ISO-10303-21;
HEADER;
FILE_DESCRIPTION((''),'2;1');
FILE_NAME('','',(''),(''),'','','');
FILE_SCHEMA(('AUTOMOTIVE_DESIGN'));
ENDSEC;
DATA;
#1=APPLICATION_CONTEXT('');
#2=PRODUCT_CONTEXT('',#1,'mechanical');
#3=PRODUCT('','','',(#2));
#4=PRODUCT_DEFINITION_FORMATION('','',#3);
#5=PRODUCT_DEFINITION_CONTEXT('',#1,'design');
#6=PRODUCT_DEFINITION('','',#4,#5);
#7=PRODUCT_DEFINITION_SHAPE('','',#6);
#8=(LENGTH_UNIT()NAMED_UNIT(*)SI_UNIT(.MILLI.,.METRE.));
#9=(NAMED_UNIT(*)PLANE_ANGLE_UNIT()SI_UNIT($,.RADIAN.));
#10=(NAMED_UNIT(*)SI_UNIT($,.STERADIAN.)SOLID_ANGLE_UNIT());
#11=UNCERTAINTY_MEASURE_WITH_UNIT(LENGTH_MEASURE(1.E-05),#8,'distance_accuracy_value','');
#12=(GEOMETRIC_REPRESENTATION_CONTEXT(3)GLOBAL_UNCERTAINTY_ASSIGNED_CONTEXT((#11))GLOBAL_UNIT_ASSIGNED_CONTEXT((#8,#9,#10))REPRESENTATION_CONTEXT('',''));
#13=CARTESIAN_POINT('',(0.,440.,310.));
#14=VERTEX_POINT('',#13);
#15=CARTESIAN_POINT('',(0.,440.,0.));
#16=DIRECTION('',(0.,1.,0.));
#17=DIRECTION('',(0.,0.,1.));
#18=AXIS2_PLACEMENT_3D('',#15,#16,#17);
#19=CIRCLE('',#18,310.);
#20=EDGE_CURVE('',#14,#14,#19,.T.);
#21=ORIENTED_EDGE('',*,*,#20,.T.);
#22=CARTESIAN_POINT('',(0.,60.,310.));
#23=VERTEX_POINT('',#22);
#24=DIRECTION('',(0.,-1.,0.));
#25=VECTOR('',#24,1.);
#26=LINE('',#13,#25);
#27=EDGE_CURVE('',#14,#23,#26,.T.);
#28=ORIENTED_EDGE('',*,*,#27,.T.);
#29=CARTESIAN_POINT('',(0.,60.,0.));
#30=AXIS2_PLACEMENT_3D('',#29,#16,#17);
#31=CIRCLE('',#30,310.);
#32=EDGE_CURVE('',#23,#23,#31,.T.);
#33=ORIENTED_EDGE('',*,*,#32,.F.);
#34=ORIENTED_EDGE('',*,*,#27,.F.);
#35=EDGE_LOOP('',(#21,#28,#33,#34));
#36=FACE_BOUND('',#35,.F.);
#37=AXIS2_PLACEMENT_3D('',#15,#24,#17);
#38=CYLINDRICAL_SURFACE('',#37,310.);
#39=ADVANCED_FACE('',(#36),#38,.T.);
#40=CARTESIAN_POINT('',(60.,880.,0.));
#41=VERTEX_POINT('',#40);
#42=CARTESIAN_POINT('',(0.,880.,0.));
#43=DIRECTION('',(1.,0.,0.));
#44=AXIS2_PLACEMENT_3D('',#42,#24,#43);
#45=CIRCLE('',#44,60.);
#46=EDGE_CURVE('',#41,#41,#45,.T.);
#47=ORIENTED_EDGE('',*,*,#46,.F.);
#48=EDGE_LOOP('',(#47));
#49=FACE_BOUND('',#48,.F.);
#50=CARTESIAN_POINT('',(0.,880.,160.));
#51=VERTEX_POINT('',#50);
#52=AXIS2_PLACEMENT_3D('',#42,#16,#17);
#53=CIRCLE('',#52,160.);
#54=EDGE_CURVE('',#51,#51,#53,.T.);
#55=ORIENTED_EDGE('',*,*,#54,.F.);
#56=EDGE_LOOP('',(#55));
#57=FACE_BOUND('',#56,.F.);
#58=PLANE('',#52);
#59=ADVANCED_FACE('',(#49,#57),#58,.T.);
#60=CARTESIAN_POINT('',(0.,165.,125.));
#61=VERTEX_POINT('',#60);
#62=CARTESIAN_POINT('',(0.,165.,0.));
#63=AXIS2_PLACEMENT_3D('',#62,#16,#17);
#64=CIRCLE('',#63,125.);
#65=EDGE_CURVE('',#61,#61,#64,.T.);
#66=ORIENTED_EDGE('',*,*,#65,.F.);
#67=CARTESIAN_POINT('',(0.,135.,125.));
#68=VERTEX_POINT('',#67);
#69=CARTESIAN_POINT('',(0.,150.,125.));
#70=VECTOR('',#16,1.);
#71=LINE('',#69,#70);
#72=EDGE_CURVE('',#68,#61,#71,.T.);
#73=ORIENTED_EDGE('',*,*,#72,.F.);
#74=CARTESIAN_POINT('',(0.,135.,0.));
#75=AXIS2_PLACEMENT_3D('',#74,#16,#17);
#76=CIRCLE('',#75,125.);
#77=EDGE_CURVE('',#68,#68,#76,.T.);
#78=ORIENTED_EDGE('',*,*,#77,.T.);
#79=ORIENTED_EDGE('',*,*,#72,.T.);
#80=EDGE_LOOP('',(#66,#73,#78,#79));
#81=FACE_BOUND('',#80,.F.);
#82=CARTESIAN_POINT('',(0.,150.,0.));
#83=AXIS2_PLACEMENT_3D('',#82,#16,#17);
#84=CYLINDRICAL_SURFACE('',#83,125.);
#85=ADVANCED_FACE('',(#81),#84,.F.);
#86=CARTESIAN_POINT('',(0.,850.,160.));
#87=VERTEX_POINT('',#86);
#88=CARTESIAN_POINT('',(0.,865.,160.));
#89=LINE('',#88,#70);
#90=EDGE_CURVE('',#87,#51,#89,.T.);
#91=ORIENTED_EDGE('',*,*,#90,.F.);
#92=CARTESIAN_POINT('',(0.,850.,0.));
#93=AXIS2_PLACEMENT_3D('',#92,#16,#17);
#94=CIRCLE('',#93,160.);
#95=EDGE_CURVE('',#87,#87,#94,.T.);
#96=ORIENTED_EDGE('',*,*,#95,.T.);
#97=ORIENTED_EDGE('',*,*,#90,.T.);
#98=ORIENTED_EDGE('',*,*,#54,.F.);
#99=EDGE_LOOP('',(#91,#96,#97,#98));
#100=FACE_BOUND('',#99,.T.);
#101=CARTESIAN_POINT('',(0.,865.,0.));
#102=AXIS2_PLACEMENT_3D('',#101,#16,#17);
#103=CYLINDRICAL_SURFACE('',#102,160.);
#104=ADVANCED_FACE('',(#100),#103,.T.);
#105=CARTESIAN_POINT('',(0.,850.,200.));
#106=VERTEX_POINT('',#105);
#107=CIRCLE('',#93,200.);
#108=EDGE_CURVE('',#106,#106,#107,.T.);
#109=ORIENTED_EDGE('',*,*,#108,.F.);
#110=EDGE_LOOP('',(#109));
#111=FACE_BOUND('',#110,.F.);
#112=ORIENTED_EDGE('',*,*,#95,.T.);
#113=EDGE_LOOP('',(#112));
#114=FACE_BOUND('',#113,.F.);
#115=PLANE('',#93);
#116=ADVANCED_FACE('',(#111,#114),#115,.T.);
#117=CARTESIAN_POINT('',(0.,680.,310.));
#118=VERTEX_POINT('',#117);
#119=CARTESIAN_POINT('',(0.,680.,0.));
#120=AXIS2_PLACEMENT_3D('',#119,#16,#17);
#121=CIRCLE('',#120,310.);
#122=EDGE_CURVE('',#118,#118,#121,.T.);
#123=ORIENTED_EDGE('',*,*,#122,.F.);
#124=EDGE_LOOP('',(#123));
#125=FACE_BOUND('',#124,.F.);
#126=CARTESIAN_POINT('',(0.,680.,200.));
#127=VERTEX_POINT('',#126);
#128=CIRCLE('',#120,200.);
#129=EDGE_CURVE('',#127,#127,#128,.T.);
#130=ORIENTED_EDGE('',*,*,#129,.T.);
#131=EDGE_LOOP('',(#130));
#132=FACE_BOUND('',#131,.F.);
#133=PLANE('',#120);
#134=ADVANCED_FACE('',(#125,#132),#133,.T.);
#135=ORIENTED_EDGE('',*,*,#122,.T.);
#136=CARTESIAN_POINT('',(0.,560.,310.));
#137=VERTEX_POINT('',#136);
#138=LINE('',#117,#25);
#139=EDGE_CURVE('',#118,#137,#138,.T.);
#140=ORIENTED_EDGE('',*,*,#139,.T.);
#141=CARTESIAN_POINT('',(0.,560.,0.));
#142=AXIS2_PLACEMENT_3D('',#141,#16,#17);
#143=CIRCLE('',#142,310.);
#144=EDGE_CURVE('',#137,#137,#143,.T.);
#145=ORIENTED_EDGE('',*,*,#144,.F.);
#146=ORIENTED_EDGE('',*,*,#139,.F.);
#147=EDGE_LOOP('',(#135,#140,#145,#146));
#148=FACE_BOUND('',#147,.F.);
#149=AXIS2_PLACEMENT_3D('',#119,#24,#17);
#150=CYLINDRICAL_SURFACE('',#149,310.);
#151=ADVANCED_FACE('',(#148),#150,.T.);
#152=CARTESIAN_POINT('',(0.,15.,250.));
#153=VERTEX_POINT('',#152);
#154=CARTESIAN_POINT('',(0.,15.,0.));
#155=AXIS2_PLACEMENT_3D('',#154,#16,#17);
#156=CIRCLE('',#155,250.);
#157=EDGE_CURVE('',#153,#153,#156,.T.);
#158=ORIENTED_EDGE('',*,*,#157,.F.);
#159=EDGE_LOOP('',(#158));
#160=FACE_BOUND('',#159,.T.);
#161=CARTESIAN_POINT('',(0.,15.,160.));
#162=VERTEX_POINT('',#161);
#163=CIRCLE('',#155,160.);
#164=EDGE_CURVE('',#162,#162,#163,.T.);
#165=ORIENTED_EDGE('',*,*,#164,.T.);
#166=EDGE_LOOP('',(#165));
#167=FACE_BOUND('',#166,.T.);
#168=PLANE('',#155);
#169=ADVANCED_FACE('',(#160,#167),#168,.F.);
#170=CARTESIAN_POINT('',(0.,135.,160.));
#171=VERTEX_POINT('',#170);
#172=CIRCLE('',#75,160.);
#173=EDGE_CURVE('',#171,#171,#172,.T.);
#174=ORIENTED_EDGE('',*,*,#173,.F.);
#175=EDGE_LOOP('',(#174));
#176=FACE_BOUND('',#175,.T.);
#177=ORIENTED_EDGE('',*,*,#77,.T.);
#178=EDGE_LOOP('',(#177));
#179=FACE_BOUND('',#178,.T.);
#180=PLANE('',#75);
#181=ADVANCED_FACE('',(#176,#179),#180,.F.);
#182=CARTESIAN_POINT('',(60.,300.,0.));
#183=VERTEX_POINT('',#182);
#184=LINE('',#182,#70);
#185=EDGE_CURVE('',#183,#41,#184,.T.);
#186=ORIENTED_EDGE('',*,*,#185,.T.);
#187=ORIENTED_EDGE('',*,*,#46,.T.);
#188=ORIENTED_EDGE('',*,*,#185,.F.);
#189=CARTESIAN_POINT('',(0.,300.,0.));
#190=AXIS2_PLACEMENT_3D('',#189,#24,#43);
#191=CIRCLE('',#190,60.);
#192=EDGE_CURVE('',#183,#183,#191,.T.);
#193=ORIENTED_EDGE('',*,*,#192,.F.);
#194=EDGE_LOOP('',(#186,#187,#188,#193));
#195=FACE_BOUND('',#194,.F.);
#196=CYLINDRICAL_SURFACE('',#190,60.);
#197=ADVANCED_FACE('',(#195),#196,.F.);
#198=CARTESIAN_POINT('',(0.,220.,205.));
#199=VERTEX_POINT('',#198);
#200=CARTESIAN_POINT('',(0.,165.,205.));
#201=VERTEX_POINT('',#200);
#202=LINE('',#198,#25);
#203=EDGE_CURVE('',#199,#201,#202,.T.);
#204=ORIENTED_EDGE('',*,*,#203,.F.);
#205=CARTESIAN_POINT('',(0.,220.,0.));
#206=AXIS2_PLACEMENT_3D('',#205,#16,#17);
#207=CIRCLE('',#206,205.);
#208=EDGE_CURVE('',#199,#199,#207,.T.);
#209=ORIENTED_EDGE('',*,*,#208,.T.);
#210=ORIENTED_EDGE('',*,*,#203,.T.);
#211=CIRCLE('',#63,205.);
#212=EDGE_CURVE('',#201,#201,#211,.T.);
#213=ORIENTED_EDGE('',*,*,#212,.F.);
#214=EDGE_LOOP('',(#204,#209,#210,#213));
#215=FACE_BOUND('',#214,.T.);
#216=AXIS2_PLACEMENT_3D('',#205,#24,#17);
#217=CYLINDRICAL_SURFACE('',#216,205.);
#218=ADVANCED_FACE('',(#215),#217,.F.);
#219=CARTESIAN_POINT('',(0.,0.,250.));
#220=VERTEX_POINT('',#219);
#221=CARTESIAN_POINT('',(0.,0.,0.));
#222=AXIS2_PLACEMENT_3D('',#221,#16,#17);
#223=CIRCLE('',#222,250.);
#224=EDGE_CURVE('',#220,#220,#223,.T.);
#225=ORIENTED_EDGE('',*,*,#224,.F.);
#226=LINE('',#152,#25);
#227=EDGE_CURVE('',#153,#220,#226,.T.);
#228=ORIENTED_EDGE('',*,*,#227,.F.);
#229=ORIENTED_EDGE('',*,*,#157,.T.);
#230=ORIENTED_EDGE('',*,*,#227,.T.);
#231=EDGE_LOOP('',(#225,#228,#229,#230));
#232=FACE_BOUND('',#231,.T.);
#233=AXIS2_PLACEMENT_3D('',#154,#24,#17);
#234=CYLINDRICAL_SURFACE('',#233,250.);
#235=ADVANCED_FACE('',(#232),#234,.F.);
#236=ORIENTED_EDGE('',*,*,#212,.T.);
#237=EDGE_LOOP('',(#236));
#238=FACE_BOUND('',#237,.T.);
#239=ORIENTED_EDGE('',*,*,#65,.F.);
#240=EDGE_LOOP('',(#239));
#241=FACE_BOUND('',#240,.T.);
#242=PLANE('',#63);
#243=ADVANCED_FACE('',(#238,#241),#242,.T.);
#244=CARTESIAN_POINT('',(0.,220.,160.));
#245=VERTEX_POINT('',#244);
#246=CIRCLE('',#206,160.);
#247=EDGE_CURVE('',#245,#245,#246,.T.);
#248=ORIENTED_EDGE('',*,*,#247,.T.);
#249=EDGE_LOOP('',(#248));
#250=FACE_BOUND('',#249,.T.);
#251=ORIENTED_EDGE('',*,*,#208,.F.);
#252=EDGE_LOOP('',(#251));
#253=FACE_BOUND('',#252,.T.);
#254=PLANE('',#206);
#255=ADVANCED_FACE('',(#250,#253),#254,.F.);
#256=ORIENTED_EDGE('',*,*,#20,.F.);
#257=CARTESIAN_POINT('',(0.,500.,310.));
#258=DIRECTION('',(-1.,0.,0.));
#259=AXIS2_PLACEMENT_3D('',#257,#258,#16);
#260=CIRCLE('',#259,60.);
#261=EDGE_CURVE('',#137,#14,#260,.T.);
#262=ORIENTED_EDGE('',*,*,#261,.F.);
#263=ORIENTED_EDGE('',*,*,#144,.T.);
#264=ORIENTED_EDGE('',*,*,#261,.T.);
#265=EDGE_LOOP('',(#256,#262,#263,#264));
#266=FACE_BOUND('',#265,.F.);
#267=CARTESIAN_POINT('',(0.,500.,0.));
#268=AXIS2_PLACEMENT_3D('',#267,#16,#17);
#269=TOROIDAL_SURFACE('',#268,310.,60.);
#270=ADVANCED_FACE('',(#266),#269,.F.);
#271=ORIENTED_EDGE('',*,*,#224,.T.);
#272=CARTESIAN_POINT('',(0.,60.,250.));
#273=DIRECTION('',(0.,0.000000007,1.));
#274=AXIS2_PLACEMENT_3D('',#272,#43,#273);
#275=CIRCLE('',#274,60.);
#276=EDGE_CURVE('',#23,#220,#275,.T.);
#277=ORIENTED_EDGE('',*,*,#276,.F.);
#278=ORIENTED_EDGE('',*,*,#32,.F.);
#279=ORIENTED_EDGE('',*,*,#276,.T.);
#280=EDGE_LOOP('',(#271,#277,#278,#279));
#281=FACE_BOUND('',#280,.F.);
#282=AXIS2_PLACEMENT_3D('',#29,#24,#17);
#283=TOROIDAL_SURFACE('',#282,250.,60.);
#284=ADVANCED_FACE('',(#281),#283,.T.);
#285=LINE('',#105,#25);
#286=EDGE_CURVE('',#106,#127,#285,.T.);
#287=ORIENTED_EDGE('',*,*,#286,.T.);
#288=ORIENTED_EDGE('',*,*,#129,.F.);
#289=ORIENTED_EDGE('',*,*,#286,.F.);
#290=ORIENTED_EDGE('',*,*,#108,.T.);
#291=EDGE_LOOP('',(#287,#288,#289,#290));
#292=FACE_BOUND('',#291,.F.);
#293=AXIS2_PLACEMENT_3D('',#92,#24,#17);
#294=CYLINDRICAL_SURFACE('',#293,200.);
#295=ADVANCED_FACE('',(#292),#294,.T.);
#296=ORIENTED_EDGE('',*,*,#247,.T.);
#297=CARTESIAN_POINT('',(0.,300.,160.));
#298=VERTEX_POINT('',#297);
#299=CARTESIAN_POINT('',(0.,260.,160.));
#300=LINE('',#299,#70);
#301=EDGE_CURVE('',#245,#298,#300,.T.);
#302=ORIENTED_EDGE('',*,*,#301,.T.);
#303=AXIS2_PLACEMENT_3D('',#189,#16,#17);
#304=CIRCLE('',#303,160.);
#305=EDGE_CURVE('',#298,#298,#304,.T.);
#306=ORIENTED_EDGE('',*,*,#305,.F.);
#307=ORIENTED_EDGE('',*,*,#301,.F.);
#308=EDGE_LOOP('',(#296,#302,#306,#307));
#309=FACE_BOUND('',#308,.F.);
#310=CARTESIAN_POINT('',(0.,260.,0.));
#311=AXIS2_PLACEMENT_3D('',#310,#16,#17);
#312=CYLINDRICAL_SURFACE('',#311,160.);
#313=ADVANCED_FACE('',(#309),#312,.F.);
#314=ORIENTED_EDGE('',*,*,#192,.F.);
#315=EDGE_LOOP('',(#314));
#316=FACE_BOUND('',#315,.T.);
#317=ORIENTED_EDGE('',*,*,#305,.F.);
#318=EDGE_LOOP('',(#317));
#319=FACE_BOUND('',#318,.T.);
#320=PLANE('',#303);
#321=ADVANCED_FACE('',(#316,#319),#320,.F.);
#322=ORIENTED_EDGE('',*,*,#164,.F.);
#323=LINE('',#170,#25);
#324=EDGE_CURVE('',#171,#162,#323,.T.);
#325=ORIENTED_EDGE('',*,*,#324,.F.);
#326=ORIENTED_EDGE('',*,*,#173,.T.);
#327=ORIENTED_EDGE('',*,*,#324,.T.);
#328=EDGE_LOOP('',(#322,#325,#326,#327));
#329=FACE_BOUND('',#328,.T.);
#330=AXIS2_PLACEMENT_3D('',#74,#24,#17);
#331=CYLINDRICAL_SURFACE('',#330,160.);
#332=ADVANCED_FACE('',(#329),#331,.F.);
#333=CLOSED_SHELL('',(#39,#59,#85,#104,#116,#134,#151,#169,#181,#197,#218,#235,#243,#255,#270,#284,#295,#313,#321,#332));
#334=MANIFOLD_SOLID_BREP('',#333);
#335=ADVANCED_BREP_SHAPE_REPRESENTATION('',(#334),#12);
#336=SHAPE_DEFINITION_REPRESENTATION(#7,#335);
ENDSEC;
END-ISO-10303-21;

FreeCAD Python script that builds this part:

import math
import FreeCAD as App
import Part
import Sketcher
from FreeCAD import Vector
Q = App.Units.Quantity

doc = App.newDocument("Part")
params = doc.addObject("Spreadsheet::Sheet", "Params")
for row, (alias, value) in enumerate([
    ("sketch1_radius", "60 mm"),
    ("sketch1_width", "880 mm"),
    ("sketch1_width2", "30 mm"),
    ("sketch1_width3", "170 mm"),
    ("sketch1_width4", "120 mm"),
    ("revolution_angle", "360 deg"),
    ("sketch2_width", "300 mm"),
    ("sketch2_width2", "80 mm"),
    ("sketch2_width3", "55 mm"),
    ("sketch2_width4", "30 mm"),
    ("sketch2_width5", "120 mm"),
    ("groove_angle", "360 deg"),
    ("sketch3_diameter", "120 mm"),
], start=1):
    params.set(f"A{row}", alias)
    params.set(f"B{row}", "=" + value)
    params.setAlias(f"B{row}", alias)

body = doc.addObject("PartDesign::Body", "Body")

sketch1 = doc.addObject("Sketcher::SketchObject", "Sketch")
body.addObject(sketch1)
sketch1.AttachmentSupport = (doc.YZ_Plane, [""])
sketch1.MapMode = "FlatFace"
sketch1.addGeometry(Part.LineSegment(Vector(0, 250, 0), Vector(0, 0, 0)), False)
sketch1.addGeometry(Part.LineSegment(Vector(0, 0, 0), Vector(880, 0, 0)), False)
sketch1.addGeometry(Part.LineSegment(Vector(880, 0, 0), Vector(880, 160, 0)), False)
sketch1.addGeometry(Part.LineSegment(Vector(880, 160, 0), Vector(850, 160, 0)), False)
sketch1.addGeometry(Part.LineSegment(Vector(850, 160, 0), Vector(850, 200, 0)), False)
sketch1.addGeometry(Part.LineSegment(Vector(850, 200, 0), Vector(680, 200, 0)), False)
sketch1.addGeometry(Part.LineSegment(Vector(680, 200, 0), Vector(680, 310, 0)), False)
sketch1.addGeometry(Part.LineSegment(Vector(680, 310, 0), Vector(560, 310, 0)), False)
sketch1.addGeometry(Part.ArcOfCircle(Part.Circle(Vector(500, 310, 0), Vector(0, 0, 1), 60), math.radians(180), math.radians(360)), False)
sketch1.addGeometry(Part.LineSegment(Vector(440, 310, 0), Vector(60, 310, 0)), False)
sketch1.addGeometry(Part.ArcOfCircle(Part.Circle(Vector(60, 250, 0), Vector(0, 0, 1), 60), math.radians(90), math.radians(180)), False)
sketch1.addConstraint(Sketcher.Constraint("Coincident", 0, 2, 1, 1))
sketch1.addConstraint(Sketcher.Constraint("Coincident", 1, 2, 2, 1))
sketch1.addConstraint(Sketcher.Constraint("Coincident", 2, 2, 3, 1))
sketch1.addConstraint(Sketcher.Constraint("Coincident", 3, 2, 4, 1))
sketch1.addConstraint(Sketcher.Constraint("Coincident", 4, 2, 5, 1))
sketch1.addConstraint(Sketcher.Constraint("Coincident", 5, 2, 6, 1))
sketch1.addConstraint(Sketcher.Constraint("Coincident", 6, 2, 7, 1))
sketch1.addConstraint(Sketcher.Constraint("Coincident", 7, 2, 8, 2))
sketch1.addConstraint(Sketcher.Constraint("Coincident", 8, 1, 9, 1))
sketch1.addConstraint(Sketcher.Constraint("Tangent", 9, 2, 10, 1))
sketch1.addConstraint(Sketcher.Constraint("Tangent", 10, 2, 0, 1))
sketch1.addConstraint(Sketcher.Constraint("Vertical", 0))
sketch1.addConstraint(Sketcher.Constraint("Horizontal", 1))
sketch1.addConstraint(Sketcher.Constraint("Vertical", 2))
sketch1.addConstraint(Sketcher.Constraint("Horizontal", 3))
sketch1.addConstraint(Sketcher.Constraint("Vertical", 4))
sketch1.addConstraint(Sketcher.Constraint("Horizontal", 5))
sketch1.addConstraint(Sketcher.Constraint("Vertical", 6))
sketch1.addConstraint(Sketcher.Constraint("Horizontal", 7))
sketch1.addConstraint(Sketcher.Constraint("Horizontal", 9))
sketch1.addConstraint(Sketcher.Constraint("Coincident", 0, 2, -1, 1))
sketch1.addConstraint(Sketcher.Constraint("Equal", 8, 10))
sketch1.addConstraint(Sketcher.Constraint("Horizontal", 8, 3, 6, 2))
sketch1.addConstraint(Sketcher.Constraint("Horizontal", 7, 2, 8, 1))
sketch1.addConstraint(Sketcher.Constraint("Radius", 8, Q("60 mm")))
sketch1.addConstraint(Sketcher.Constraint("DistanceX", 1, 1, 1, 2, Q("880 mm")))
sketch1.addConstraint(Sketcher.Constraint("DistanceX", 3, 2, 3, 1, Q("30 mm")))
sketch1.addConstraint(Sketcher.Constraint("DistanceX", 5, 2, 5, 1, Q("170 mm")))
sketch1.addConstraint(Sketcher.Constraint("DistanceX", 7, 2, 7, 1, Q("120 mm")))
sketch1.addConstraint(Sketcher.Constraint("DistanceY", 0, 2, 0, 1, Q("250 mm")))
sketch1.addConstraint(Sketcher.Constraint("DistanceY", 2, 1, 2, 2, Q("160 mm")))
sketch1.addConstraint(Sketcher.Constraint("DistanceY", 4, 1, 4, 2, Q("40 mm")))
sketch1.setExpression("Constraints[24]", "Params.sketch1_radius")
sketch1.setExpression("Constraints[25]", "Params.sketch1_width")
sketch1.setExpression("Constraints[26]", "Params.sketch1_width2")
sketch1.setExpression("Constraints[27]", "Params.sketch1_width3")
sketch1.setExpression("Constraints[28]", "Params.sketch1_width4")
revolution = doc.addObject("PartDesign::Revolution", "Revolution")
body.addObject(revolution)
revolution.Profile = sketch1
revolution.ReferenceAxis = (sketch1, ["H_Axis"])
revolution.setExpression("Angle", "Params.revolution_angle")

sketch2 = doc.addObject("Sketcher::SketchObject", "Sketch001")
body.addObject(sketch2)
sketch2.AttachmentSupport = (doc.YZ_Plane, [""])
sketch2.MapMode = "FlatFace"
sketch2.addGeometry(Part.LineSegment(Vector(0, 250, 0), Vector(0, 0, 0)), False)
sketch2.addGeometry(Part.LineSegment(Vector(0, 0, 0), Vector(300, 0, 0)), False)
sketch2.addGeometry(Part.LineSegment(Vector(300, 0, 0), Vector(300, 160, 0)), False)
sketch2.addGeometry(Part.LineSegment(Vector(300, 160, 0), Vector(220, 160, 0)), False)
sketch2.addGeometry(Part.LineSegment(Vector(220, 160, 0), Vector(220, 205, 0)), False)
sketch2.addGeometry(Part.LineSegment(Vector(220, 205, 0), Vector(165, 205, 0)), False)
sketch2.addGeometry(Part.LineSegment(Vector(165, 205, 0), Vector(165, 125, 0)), False)
sketch2.addGeometry(Part.LineSegment(Vector(165, 125, 0), Vector(135, 125, 0)), False)
sketch2.addGeometry(Part.LineSegment(Vector(135, 125, 0), Vector(135, 160, 0)), False)
sketch2.addGeometry(Part.LineSegment(Vector(135, 160, 0), Vector(15, 160, 0)), False)
sketch2.addGeometry(Part.LineSegment(Vector(15, 160, 0), Vector(15, 250, 0)), False)
sketch2.addGeometry(Part.LineSegment(Vector(15, 250, 0), Vector(0, 250, 0)), False)
sketch2.addConstraint(Sketcher.Constraint("Coincident", 0, 2, 1, 1))
sketch2.addConstraint(Sketcher.Constraint("Coincident", 1, 2, 2, 1))
sketch2.addConstraint(Sketcher.Constraint("Coincident", 2, 2, 3, 1))
sketch2.addConstraint(Sketcher.Constraint("Coincident", 3, 2, 4, 1))
sketch2.addConstraint(Sketcher.Constraint("Coincident", 4, 2, 5, 1))
sketch2.addConstraint(Sketcher.Constraint("Coincident", 5, 2, 6, 1))
sketch2.addConstraint(Sketcher.Constraint("Coincident", 6, 2, 7, 1))
sketch2.addConstraint(Sketcher.Constraint("Coincident", 7, 2, 8, 1))
sketch2.addConstraint(Sketcher.Constraint("Coincident", 8, 2, 9, 1))
sketch2.addConstraint(Sketcher.Constraint("Coincident", 9, 2, 10, 1))
sketch2.addConstraint(Sketcher.Constraint("Coincident", 10, 2, 11, 1))
sketch2.addConstraint(Sketcher.Constraint("Coincident", 11, 2, 0, 1))
sketch2.addConstraint(Sketcher.Constraint("Vertical", 0))
sketch2.addConstraint(Sketcher.Constraint("Horizontal", 1))
sketch2.addConstraint(Sketcher.Constraint("Vertical", 2))
sketch2.addConstraint(Sketcher.Constraint("Horizontal", 3))
sketch2.addConstraint(Sketcher.Constraint("Vertical", 4))
sketch2.addConstraint(Sketcher.Constraint("Horizontal", 5))
sketch2.addConstraint(Sketcher.Constraint("Vertical", 6))
sketch2.addConstraint(Sketcher.Constraint("Horizontal", 7))
sketch2.addConstraint(Sketcher.Constraint("Vertical", 8))
sketch2.addConstraint(Sketcher.Constraint("Horizontal", 9))
sketch2.addConstraint(Sketcher.Constraint("Vertical", 10))
sketch2.addConstraint(Sketcher.Constraint("Horizontal", 11))
sketch2.addConstraint(Sketcher.Constraint("Coincident", 0, 2, -1, 1))
sketch2.addConstraint(Sketcher.Constraint("Horizontal", 3, 2, 8, 2))
sketch2.addConstraint(Sketcher.Constraint("Equal", 3, 6))
sketch2.addConstraint(Sketcher.Constraint("DistanceX", 1, 1, 1, 2, Q("300 mm")))
sketch2.addConstraint(Sketcher.Constraint("DistanceX", 3, 2, 3, 1, Q("80 mm")))
sketch2.addConstraint(Sketcher.Constraint("DistanceX", 5, 2, 5, 1, Q("55 mm")))
sketch2.addConstraint(Sketcher.Constraint("DistanceX", 7, 2, 7, 1, Q("30 mm")))
sketch2.addConstraint(Sketcher.Constraint("DistanceX", 9, 2, 9, 1, Q("120 mm")))
sketch2.addConstraint(Sketcher.Constraint("DistanceY", 0, 2, 0, 1, Q("250 mm")))
sketch2.addConstraint(Sketcher.Constraint("DistanceY", 2, 1, 2, 2, Q("160 mm")))
sketch2.addConstraint(Sketcher.Constraint("DistanceY", 4, 1, 4, 2, Q("45 mm")))
sketch2.setExpression("Constraints[27]", "Params.sketch2_width")
sketch2.setExpression("Constraints[28]", "Params.sketch2_width2")
sketch2.setExpression("Constraints[29]", "Params.sketch2_width3")
sketch2.setExpression("Constraints[30]", "Params.sketch2_width4")
sketch2.setExpression("Constraints[31]", "Params.sketch2_width5")
groove = doc.addObject("PartDesign::Groove", "Groove")
body.addObject(groove)
groove.Profile = sketch2
groove.ReferenceAxis = (sketch2, ["H_Axis"])
groove.setExpression("Angle", "Params.groove_angle")

sketch3 = doc.addObject("Sketcher::SketchObject", "Sketch002")
body.addObject(sketch3)
sketch3.AttachmentSupport = (doc.XZ_Plane, [""])
sketch3.MapMode = "FlatFace"
sketch3.AttachmentOffset = App.Placement(Vector(0, 0, -300), App.Rotation())
sketch3.addGeometry(Part.Circle(Vector(0, 0, 0), Vector(0, 0, 1), 60), False)
sketch3.addConstraint(Sketcher.Constraint("Coincident", 0, 3, -1, 1))
sketch3.addConstraint(Sketcher.Constraint("Diameter", 0, Q("120 mm")))
sketch3.setExpression("Constraints[1]", "Params.sketch3_diameter")
pocket1 = doc.addObject("PartDesign::Pocket", "Pocket")
body.addObject(pocket1)
pocket1.Profile = sketch3
pocket1.Type = "ThroughAll"

doc.recompute()
